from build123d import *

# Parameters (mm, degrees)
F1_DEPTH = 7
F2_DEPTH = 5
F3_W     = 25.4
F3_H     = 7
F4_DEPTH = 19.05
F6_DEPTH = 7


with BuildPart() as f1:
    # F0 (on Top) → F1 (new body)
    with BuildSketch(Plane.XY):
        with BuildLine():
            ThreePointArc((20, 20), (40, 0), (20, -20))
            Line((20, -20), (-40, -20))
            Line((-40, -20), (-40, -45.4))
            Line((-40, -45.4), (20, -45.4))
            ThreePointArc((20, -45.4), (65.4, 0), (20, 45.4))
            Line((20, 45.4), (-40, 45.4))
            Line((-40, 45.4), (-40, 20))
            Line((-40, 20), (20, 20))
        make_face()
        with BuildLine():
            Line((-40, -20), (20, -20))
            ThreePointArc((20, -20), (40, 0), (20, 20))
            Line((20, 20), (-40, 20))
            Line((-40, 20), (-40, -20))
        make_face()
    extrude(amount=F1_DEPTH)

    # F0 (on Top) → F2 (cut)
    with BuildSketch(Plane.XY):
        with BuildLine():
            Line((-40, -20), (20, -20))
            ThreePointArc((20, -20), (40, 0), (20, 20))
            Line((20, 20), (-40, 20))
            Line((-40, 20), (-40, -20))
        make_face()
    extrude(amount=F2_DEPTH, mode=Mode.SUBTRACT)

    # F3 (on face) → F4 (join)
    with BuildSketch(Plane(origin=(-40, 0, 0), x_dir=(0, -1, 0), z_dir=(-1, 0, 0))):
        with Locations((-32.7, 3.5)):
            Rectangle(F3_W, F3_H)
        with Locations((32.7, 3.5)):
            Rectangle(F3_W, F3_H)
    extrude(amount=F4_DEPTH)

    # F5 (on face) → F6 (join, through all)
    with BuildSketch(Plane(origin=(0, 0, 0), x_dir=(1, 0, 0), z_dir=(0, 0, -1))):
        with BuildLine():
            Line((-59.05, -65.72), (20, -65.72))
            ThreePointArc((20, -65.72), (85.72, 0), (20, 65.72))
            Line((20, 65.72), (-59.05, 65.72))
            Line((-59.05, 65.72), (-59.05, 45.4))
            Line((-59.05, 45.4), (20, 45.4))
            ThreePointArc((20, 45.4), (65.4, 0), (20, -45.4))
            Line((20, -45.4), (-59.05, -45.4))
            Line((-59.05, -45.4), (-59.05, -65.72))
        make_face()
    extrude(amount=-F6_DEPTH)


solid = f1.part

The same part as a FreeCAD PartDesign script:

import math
import FreeCAD as App
import Part
import Sketcher
Q = App.Units.Quantity


def add_polygon(sketch, points):
    """Adds a closed chain of lines whose ends are joined by coincident constraints."""
    first, n = sketch.GeometryCount, len(points)
    for a, b in zip(points, points[1:] + points[:1]):
        sketch.addGeometry(Part.LineSegment(App.Vector(*a, 0), App.Vector(*b, 0)), False)
    for i in range(n):
        sketch.addConstraint(Sketcher.Constraint("Coincident", first + i, 2, first + (i + 1) % n, 1))

doc = App.newDocument("Part")
body = doc.addObject("PartDesign::Body", "Body")

# Sketch on XY plane
sketch1 = doc.addObject("Sketcher::SketchObject", "Sketch")
body.addObject(sketch1)
sketch1.AttachmentSupport = (doc.XY_Plane, [""])
sketch1.MapMode = "FlatFace"
sketch1.addGeometry([
    Part.LineSegment(App.Vector(-40, -45, 0), App.Vector(20, -45, 0)),
    Part.ArcOfCircle(Part.Circle(App.Vector(20, 0, 0), App.Vector(0, 0, 1), 45), math.radians(-90), math.radians(90)),
    Part.LineSegment(App.Vector(20, 45, 0), App.Vector(-40, 45, 0)),
    Part.LineSegment(App.Vector(-40, 45, 0), App.Vector(-40, -45, 0)),
], False)
sketch1.addConstraint([
    Sketcher.Constraint("Tangent", 0, 2, 1, 1),
    Sketcher.Constraint("Tangent", 1, 2, 2, 1),
    Sketcher.Constraint("Coincident", 2, 2, 3, 1),
    Sketcher.Constraint("Coincident", 3, 2, 0, 1),
    Sketcher.Constraint("Horizontal", 0),
    Sketcher.Constraint("Horizontal", 2),
    Sketcher.Constraint("Vertical", 3),
    Sketcher.Constraint("PointOnObject", 1, 3, -1),
    Sketcher.Constraint("Radius", 1, Q("45.4 mm")),
    Sketcher.Constraint("DistanceX", 0, 1, 0, 2, Q("60 mm")),
    Sketcher.Constraint("DistanceX", -1, 1, 1, 3, Q("20 mm")),
])
pad1 = doc.addObject("PartDesign::Pad", "Pad")
body.addObject(pad1)
pad1.Profile = sketch1
pad1.Length = 7

# Sketch on XY plane
sketch2 = doc.addObject("Sketcher::SketchObject", "Sketch001")
body.addObject(sketch2)
sketch2.AttachmentSupport = (doc.XY_Plane, [""])
sketch2.MapMode = "FlatFace"
sketch2.addGeometry([
    Part.LineSegment(App.Vector(-40, -20, 0), App.Vector(20, -20, 0)),
    Part.ArcOfCircle(Part.Circle(App.Vector(20, 0, 0), App.Vector(0, 0, 1), 20), math.radians(-90), math.radians(90)),
    Part.LineSegment(App.Vector(20, 20, 0), App.Vector(-40, 20, 0)),
    Part.LineSegment(App.Vector(-40, 20, 0), App.Vector(-40, -20, 0)),
], False)
sketch2.addConstraint([
    Sketcher.Constraint("Tangent", 0, 2, 1, 1),
    Sketcher.Constraint("Tangent", 1, 2, 2, 1),
    Sketcher.Constraint("Coincident", 2, 2, 3, 1),
    Sketcher.Constraint("Coincident", 3, 2, 0, 1),
    Sketcher.Constraint("Horizontal", 0),
    Sketcher.Constraint("Horizontal", 2),
    Sketcher.Constraint("Vertical", 3),
    Sketcher.Constraint("PointOnObject", 1, 3, -1),
    Sketcher.Constraint("Radius", 1, Q("20 mm")),
    Sketcher.Constraint("DistanceX", 0, 1, 0, 2, Q("60 mm")),
    Sketcher.Constraint("DistanceX", -1, 1, 1, 3, Q("20 mm")),
])
pocket1 = doc.addObject("PartDesign::Pocket", "Pocket")
body.addObject(pocket1)
pocket1.Profile = sketch2
pocket1.Length = 5
pocket1.Reversed = True

# Sketch on YZ plane
sketch3 = doc.addObject("Sketcher::SketchObject", "Sketch002")
body.addObject(sketch3)
sketch3.AttachmentSupport = (doc.YZ_Plane, [""])
sketch3.MapMode = "FlatFace"
sketch3.AttachmentOffset = App.Placement(App.Vector(0, 0, -40), App.Rotation())
add_polygon(sketch3, [(45, 7), (45, 0), (20, 0), (20, 7)])  # lines 0-3
add_polygon(sketch3, [(-20, 7), (-20, 0), (-45, 0), (-45, 7)])  # lines 4-7
sketch3.addConstraint([
    Sketcher.Constraint("Vertical", 0),
    Sketcher.Constraint("Horizontal", 1),
    Sketcher.Constraint("Vertical", 2),
    Sketcher.Constraint("Horizontal", 3),
    Sketcher.Constraint("Vertical", 4),
    Sketcher.Constraint("Horizontal", 5),
    Sketcher.Constraint("Vertical", 6),
    Sketcher.Constraint("Horizontal", 7),
    Sketcher.Constraint("Symmetric", 1, 2, 4, 2, -1, 1),
    Sketcher.Constraint("Symmetric", 0, 2, 5, 2, -2),
    Sketcher.Constraint("Horizontal", 3, 2, 6, 2),
    Sketcher.Constraint("DistanceY", 0, 2, 0, 1, Q("7 mm")),
    Sketcher.Constraint("DistanceX", 1, 2, 1, 1, Q("25.4 mm")),
    Sketcher.Constraint("DistanceX", -1, 1, 1, 2, Q("20 mm")),
])
pad2 = doc.addObject("PartDesign::Pad", "Pad001")
body.addObject(pad2)
pad2.Profile = sketch3
pad2.Length = 19.05
pad2.Reversed = True

# Sketch on XY plane
sketch4 = doc.addObject("Sketcher::SketchObject", "Sketch003")
body.addObject(sketch4)
sketch4.AttachmentSupport = (doc.XY_Plane, [""])
sketch4.MapMode = "FlatFace"
sketch4.addGeometry([
    Part.LineSegment(App.Vector(-59, 66, 0), App.Vector(20, 66, 0)),  # 0
    Part.ArcOfCircle(Part.Circle(App.Vector(20, 0, 0), App.Vector(0, 0, 1), 66), math.radians(-90), math.radians(90)),  # 1
    Part.LineSegment(App.Vector(20, -66, 0), App.Vector(-59, -66, 0)),  # 2
    Part.LineSegment(App.Vector(-59, -66, 0), App.Vector(-59, -45, 0)),  # 3
    Part.LineSegment(App.Vector(-59, -45, 0), App.Vector(20, -45, 0)),  # 4
    Part.ArcOfCircle(Part.Circle(App.Vector(20, 0, 0), App.Vector(0, 0, 1), 45), math.radians(-90), math.radians(90)),  # 5
    Part.LineSegment(App.Vector(20, 45, 0), App.Vector(-59, 45, 0)),  # 6
    Part.LineSegment(App.Vector(-59, 45, 0), App.Vector(-59, 66, 0)),  # 7
], False)
sketch4.addConstraint([
    Sketcher.Constraint("Tangent", 0, 2, 1, 2),
    Sketcher.Constraint("Tangent", 1, 1, 2, 1),
    Sketcher.Constraint("Coincident", 2, 2, 3, 1),
    Sketcher.Constraint("Coincident", 3, 2, 4, 1),
    Sketcher.Constraint("Tangent", 4, 2, 5, 1),
    Sketcher.Constraint("Tangent", 5, 2, 6, 1),
    Sketcher.Constraint("Coincident", 6, 2, 7, 1),
    Sketcher.Constraint("Coincident", 7, 2, 0, 1),
    Sketcher.Constraint("Horizontal", 0),
    Sketcher.Constraint("Horizontal", 2),
    Sketcher.Constraint("Vertical", 3),
    Sketcher.Constraint("Horizontal", 4),
    Sketcher.Constraint("Horizontal", 6),
    Sketcher.Constraint("Vertical", 7),
    Sketcher.Constraint("Coincident", 5, 3, 1, 3),
    Sketcher.Constraint("Symmetric", 3, 2, 6, 2, -1),
    Sketcher.Constraint("Radius", 5, Q("45.4 mm")),
    Sketcher.Constraint("Radius", 1, Q("65.72 mm")),
    Sketcher.Constraint("DistanceX", -1, 1, 1, 3, Q("20 mm")),
    Sketcher.Constraint("DistanceX", 0, 1, 0, 2, Q("79.05 mm")),
])
pad3 = doc.addObject("PartDesign::Pad", "Pad002")
body.addObject(pad3)
pad3.Profile = sketch4
pad3.Type = "UpToLast"

doc.recompute()
